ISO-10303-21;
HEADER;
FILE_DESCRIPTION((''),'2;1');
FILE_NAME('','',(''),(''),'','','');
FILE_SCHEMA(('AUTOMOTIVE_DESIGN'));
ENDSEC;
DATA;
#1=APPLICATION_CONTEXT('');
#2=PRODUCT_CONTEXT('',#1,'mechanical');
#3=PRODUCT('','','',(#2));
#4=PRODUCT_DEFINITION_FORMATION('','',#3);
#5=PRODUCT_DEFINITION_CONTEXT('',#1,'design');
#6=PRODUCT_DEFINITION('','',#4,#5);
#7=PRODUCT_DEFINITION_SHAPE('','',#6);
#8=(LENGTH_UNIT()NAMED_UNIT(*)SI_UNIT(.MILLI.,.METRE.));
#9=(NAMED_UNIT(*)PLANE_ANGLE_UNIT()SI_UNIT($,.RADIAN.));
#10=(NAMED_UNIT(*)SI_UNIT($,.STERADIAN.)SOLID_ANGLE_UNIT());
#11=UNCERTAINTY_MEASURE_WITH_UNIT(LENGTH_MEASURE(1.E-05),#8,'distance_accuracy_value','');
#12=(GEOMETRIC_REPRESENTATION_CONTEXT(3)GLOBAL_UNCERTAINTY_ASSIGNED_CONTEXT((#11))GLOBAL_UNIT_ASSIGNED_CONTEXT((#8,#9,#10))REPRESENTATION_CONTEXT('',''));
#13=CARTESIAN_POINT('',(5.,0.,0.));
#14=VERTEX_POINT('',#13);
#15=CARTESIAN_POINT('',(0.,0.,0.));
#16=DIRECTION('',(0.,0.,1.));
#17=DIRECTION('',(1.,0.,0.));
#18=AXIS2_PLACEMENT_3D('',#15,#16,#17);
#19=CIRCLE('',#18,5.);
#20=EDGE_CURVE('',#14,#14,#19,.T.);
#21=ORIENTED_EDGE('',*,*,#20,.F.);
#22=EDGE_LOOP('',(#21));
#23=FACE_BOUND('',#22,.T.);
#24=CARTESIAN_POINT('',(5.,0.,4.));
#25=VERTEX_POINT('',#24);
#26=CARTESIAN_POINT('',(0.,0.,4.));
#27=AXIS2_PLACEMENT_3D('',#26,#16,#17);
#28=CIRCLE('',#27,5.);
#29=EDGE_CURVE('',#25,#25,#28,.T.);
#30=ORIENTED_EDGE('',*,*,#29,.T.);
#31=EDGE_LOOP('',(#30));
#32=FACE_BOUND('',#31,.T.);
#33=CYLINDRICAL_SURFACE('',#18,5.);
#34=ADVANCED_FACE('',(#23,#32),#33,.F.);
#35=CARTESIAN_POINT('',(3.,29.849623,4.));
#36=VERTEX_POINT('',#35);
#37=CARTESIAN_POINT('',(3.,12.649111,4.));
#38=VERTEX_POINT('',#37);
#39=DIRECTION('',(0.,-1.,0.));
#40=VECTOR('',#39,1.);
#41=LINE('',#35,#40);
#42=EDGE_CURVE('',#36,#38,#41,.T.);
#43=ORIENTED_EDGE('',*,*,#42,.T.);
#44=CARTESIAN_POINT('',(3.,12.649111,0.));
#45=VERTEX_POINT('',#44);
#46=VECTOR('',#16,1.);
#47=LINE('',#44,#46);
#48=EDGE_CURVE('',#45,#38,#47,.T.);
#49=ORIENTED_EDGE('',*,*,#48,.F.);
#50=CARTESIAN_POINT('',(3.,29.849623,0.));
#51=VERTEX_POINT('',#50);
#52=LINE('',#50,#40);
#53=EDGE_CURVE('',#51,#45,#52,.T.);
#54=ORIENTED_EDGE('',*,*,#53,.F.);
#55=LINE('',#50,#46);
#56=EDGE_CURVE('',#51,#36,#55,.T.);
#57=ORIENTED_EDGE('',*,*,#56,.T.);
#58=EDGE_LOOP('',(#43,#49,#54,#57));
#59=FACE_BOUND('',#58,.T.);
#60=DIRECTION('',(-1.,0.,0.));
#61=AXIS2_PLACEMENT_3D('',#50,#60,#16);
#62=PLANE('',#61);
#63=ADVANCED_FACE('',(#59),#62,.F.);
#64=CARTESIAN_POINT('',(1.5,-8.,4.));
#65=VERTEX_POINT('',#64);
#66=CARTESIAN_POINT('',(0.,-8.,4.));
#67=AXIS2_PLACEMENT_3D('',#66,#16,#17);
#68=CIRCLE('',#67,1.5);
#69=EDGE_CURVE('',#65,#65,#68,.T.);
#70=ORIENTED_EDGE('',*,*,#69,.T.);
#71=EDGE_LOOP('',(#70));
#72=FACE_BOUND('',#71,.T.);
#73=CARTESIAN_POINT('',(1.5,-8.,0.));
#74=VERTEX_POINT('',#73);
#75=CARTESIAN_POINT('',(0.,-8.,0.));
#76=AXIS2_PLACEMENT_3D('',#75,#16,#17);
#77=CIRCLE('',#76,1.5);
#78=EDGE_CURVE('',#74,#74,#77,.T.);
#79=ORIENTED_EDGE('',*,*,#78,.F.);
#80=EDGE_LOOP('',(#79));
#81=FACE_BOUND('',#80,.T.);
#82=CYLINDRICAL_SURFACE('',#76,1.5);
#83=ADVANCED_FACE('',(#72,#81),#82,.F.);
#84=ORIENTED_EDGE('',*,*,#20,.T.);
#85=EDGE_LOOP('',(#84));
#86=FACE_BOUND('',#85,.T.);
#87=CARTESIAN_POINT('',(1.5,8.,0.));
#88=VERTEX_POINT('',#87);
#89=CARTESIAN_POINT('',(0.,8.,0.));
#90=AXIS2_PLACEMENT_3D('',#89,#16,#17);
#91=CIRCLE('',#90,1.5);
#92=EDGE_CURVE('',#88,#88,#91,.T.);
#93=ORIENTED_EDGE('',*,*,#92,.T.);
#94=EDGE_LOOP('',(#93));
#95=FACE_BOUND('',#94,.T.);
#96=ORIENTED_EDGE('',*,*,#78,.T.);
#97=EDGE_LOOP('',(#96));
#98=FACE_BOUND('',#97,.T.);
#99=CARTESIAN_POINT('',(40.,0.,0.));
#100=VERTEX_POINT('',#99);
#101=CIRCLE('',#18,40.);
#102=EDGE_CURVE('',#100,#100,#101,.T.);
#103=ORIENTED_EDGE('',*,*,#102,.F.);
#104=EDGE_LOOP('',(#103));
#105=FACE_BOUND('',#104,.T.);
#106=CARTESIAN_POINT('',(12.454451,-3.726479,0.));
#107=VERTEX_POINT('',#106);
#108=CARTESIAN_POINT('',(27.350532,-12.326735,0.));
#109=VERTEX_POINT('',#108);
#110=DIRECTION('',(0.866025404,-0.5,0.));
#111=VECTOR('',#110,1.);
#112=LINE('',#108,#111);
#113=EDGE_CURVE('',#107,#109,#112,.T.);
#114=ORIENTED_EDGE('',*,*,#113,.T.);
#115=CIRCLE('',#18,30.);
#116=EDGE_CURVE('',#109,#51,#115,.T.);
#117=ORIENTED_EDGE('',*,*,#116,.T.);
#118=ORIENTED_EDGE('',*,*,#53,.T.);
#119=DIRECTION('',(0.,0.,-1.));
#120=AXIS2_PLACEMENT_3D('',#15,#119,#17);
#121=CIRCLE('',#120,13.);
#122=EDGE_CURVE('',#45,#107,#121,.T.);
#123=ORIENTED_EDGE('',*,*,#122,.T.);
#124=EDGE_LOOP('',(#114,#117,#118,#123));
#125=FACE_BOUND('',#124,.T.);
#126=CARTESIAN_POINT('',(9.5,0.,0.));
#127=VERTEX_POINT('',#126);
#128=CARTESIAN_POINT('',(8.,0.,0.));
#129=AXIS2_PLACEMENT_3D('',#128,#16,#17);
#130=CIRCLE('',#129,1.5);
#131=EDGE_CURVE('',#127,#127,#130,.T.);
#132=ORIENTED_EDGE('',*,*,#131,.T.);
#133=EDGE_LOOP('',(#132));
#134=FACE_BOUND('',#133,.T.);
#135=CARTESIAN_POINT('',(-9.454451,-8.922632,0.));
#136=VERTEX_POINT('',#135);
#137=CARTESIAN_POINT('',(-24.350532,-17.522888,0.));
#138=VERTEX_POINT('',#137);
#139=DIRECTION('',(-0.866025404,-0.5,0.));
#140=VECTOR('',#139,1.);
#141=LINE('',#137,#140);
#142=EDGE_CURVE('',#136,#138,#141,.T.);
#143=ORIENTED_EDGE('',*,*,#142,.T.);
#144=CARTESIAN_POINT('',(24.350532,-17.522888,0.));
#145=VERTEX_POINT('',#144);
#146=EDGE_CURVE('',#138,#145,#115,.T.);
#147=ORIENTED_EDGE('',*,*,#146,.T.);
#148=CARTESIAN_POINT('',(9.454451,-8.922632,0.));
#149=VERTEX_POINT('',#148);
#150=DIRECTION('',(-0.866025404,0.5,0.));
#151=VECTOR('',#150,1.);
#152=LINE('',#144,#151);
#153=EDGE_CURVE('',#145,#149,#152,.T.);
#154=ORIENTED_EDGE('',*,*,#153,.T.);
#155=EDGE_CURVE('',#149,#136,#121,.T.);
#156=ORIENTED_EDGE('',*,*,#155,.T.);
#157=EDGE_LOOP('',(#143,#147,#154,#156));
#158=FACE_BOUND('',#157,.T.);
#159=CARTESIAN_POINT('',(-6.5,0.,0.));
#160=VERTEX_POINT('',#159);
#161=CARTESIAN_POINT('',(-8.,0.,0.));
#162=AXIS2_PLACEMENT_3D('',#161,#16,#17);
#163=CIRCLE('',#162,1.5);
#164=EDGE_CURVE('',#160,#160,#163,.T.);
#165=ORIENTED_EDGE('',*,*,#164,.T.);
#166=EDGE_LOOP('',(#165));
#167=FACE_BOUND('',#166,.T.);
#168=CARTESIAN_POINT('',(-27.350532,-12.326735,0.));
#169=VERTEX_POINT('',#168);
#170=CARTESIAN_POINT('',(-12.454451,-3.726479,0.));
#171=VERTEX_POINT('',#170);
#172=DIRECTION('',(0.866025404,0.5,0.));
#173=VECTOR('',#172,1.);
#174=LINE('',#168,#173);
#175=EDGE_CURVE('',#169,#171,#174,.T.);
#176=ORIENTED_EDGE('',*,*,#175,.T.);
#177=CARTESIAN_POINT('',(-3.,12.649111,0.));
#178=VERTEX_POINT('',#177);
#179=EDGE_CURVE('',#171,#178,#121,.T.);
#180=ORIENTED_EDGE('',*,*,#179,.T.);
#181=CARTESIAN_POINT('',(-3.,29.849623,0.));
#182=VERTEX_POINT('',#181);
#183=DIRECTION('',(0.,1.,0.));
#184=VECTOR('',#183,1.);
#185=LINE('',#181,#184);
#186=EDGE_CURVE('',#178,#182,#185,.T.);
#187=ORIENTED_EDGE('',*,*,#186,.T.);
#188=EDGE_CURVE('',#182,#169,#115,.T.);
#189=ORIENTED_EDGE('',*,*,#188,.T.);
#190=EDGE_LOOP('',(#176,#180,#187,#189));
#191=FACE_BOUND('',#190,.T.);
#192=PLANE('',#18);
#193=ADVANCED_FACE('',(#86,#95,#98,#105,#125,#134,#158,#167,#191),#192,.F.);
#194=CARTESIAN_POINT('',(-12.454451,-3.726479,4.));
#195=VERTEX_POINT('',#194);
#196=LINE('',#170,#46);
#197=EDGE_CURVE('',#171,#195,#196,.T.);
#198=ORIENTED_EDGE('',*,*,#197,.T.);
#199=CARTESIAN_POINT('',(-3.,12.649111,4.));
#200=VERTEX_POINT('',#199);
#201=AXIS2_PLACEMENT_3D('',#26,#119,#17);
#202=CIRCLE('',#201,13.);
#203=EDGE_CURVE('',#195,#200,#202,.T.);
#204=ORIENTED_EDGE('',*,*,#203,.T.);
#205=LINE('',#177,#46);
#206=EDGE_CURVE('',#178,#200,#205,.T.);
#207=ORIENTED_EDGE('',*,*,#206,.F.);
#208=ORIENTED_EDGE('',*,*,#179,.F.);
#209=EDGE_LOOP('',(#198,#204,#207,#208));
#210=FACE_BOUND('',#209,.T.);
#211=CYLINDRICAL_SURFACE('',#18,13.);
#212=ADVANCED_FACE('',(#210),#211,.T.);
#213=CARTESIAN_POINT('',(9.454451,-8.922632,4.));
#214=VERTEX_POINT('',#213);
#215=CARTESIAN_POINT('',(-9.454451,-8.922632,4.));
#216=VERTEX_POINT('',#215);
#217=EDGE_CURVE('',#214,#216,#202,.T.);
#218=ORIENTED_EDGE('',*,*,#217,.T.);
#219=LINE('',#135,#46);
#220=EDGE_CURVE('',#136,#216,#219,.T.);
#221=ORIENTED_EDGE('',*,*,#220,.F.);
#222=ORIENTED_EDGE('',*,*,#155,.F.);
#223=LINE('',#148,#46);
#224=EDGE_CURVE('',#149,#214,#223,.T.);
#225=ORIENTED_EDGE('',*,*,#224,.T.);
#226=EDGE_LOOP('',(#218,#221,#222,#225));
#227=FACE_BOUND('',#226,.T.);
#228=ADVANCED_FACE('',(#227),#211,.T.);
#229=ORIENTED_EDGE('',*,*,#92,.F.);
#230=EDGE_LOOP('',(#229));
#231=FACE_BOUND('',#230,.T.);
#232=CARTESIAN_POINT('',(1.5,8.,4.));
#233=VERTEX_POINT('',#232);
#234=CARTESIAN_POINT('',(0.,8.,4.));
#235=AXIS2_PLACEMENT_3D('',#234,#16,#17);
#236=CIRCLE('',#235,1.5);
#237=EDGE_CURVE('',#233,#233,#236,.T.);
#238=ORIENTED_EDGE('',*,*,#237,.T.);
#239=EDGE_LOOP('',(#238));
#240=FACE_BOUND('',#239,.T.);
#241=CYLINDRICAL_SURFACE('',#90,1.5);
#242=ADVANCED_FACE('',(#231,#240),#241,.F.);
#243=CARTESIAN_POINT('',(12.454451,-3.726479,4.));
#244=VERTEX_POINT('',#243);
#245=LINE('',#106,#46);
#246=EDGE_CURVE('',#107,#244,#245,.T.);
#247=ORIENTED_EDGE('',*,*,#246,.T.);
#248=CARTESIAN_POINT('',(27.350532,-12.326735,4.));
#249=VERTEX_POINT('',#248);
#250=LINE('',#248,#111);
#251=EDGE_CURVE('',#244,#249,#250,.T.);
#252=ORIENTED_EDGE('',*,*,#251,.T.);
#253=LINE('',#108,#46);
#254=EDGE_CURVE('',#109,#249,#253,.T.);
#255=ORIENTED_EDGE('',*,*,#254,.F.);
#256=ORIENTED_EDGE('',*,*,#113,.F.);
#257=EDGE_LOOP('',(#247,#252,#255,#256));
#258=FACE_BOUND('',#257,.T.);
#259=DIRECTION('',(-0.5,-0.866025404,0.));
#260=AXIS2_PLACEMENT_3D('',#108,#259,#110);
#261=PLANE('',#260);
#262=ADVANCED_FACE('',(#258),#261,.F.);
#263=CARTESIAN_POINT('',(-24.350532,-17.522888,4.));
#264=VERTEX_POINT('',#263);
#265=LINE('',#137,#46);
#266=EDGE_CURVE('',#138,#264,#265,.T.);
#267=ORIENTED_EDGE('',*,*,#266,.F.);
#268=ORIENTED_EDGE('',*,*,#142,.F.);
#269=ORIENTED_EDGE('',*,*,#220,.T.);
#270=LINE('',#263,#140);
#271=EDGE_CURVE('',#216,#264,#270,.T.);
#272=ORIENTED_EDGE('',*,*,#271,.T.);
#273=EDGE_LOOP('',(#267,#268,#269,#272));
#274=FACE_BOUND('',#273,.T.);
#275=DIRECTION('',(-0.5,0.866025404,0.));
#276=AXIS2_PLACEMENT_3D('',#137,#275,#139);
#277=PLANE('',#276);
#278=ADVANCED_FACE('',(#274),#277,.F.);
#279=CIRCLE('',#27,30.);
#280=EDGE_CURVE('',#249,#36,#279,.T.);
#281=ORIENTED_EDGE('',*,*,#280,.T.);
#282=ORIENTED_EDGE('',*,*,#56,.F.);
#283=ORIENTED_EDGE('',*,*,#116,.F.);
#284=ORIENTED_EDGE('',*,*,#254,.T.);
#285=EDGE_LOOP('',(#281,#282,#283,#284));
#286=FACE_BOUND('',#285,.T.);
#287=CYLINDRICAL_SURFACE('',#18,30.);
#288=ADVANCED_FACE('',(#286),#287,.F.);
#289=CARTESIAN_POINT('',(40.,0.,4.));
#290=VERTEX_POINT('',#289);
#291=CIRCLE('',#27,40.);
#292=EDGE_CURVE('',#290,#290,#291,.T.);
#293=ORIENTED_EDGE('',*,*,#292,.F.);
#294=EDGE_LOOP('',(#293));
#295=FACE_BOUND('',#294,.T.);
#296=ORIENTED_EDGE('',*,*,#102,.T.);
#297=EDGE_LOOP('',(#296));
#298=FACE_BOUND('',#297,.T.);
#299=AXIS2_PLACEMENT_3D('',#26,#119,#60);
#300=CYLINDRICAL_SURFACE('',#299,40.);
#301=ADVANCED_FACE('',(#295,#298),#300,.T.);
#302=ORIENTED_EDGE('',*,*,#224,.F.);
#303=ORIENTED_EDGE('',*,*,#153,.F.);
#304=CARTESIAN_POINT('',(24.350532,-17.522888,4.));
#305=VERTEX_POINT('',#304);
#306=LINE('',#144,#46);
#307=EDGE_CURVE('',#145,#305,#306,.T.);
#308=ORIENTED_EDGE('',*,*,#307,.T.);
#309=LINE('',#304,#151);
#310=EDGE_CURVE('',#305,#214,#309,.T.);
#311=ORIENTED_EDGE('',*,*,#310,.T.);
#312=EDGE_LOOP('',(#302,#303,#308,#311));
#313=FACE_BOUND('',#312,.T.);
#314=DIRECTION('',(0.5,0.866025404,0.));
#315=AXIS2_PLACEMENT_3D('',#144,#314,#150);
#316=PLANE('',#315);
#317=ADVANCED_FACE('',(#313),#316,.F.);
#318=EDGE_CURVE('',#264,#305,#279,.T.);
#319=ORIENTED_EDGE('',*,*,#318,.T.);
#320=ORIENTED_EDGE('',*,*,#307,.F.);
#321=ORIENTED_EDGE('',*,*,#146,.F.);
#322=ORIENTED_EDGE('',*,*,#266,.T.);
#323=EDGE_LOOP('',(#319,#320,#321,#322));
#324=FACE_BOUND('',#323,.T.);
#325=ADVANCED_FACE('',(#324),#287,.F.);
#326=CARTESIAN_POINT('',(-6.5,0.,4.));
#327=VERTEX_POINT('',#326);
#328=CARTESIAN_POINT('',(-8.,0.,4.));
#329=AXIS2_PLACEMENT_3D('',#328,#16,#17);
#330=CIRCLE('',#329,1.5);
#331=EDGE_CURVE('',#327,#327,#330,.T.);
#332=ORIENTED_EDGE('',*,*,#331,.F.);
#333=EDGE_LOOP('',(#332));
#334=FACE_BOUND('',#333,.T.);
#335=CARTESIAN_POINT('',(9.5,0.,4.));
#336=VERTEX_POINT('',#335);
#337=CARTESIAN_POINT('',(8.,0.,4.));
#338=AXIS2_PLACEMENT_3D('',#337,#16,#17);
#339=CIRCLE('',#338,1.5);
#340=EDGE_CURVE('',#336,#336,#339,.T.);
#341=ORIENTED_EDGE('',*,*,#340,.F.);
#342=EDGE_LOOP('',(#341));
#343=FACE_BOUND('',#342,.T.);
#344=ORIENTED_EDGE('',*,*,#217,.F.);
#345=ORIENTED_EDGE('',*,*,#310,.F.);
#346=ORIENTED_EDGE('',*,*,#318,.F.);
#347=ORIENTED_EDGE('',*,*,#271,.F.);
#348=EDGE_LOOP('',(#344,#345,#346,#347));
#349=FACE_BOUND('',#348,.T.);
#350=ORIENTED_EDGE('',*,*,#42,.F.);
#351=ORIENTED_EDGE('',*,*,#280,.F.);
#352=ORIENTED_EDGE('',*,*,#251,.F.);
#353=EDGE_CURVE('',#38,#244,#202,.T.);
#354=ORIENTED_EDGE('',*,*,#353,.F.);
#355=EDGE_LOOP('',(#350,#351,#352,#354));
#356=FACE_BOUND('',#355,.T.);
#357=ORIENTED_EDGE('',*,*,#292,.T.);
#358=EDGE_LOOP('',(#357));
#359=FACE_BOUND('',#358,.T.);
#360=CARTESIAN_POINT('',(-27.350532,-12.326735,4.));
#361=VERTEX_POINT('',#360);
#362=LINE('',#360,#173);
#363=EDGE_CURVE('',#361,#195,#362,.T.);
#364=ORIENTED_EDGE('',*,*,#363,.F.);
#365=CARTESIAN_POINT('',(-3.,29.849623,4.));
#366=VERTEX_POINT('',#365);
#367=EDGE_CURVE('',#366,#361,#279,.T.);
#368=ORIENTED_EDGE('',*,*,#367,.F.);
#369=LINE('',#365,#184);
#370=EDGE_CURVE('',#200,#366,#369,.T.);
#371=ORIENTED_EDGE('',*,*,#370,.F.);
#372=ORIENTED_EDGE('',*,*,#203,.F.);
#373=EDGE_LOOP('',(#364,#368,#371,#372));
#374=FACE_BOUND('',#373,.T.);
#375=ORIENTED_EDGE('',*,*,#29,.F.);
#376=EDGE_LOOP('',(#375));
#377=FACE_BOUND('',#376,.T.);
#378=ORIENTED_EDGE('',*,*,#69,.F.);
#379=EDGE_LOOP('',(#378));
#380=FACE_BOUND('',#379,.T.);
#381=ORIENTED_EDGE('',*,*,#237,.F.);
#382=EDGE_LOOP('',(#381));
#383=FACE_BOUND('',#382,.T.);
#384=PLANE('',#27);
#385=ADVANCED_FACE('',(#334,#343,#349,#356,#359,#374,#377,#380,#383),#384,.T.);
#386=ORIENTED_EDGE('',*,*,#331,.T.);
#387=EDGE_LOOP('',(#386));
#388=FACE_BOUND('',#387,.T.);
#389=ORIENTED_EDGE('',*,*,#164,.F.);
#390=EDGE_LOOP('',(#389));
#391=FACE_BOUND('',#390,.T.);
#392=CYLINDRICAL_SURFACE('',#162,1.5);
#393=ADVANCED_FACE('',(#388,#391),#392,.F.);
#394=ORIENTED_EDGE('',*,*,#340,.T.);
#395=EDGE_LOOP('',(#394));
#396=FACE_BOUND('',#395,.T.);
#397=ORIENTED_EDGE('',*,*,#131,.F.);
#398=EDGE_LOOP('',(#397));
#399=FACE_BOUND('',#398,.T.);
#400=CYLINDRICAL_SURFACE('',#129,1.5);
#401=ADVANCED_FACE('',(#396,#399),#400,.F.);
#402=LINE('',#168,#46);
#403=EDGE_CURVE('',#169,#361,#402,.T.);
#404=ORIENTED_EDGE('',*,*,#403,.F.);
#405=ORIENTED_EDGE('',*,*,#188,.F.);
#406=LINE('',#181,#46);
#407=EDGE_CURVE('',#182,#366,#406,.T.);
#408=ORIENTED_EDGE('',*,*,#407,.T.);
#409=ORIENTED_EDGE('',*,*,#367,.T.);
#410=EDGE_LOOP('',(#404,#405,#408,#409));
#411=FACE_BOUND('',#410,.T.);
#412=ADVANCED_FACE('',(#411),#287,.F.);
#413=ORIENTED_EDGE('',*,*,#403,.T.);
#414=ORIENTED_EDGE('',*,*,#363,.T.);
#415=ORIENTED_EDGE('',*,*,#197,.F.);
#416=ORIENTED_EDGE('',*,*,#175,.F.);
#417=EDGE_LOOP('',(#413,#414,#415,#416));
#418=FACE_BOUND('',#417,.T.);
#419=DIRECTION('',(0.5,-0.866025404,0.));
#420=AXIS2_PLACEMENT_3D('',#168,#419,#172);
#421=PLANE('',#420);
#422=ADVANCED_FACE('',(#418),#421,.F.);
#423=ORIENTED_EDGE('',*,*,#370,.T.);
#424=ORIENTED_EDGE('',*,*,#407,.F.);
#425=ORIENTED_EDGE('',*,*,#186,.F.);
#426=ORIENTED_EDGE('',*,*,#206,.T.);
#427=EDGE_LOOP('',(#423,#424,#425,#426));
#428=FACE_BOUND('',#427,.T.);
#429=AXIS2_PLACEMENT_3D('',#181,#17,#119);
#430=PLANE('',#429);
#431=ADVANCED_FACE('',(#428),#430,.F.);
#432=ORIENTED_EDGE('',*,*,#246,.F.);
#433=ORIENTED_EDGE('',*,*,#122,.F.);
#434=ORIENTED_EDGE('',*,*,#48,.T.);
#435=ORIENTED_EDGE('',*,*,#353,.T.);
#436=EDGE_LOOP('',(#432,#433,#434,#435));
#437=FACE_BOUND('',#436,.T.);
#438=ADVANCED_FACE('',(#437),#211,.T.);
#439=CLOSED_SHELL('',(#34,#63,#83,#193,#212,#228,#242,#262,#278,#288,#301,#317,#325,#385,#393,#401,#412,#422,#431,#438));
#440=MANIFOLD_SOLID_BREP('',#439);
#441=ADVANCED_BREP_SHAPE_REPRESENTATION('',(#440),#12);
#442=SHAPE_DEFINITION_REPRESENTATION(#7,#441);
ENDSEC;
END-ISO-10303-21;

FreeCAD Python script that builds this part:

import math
import FreeCAD as App
import Part
import Sketcher
Q = App.Units.Quantity

doc = App.newDocument("Part")
body = doc.addObject("PartDesign::Body", "Body")

# Sketch on XY plane
sketch1 = body.newObject("Sketcher::SketchObject", "Sketch")
sketch1.AttachmentSupport = (doc.getObject("XY_Plane"), [""])
sketch1.MapMode = "FlatFace"
sketch1.addGeometry(Part.Circle(App.Vector(0, 0, 0), App.Vector(0, 0, 1), 40), False)
sketch1.addConstraint([
    Sketcher.Constraint("Coincident", 0, 3, -1, 1),
    Sketcher.Constraint("Diameter", 0, Q("80 mm")),
])
pad1 = body.newObject("PartDesign::Pad", "Pad")
pad1.Profile = sketch1
pad1.Length = 4

# Sketch on XY plane
sketch2 = body.newObject("Sketcher::SketchObject", "Sketch001")
sketch2.AttachmentSupport = (doc.getObject("XY_Plane"), [""])
sketch2.MapMode = "FlatFace"
sketch2.AttachmentOffset = App.Placement(App.Vector(0, 0, 4), App.Rotation())
sketch2.addGeometry([
    Part.Circle(App.Vector(0, 0, 0), App.Vector(0, 0, 1), 5),  # 0
    Part.Circle(App.Vector(-8, 0, 0), App.Vector(0, 0, 1), 1.5),  # 1
    Part.Circle(App.Vector(0, 8, 0), App.Vector(0, 0, 1), 1.5),  # 2
    Part.Circle(App.Vector(8, 0, 0), App.Vector(0, 0, 1), 1.5),  # 3
    Part.Circle(App.Vector(0, -8, 0), App.Vector(0, 0, 1), 1.5),  # 4
    Part.LineSegment(App.Vector(-3, 12.649111, 0), App.Vector(-3, 29.849623, 0)),  # 5
    Part.ArcOfCircle(Part.Circle(App.Vector(0, 0, 0), App.Vector(0, 0, 1), 30), math.radians(95.73917), math.radians(204.26083)),  # 6
    Part.LineSegment(App.Vector(-27.350532, -12.326735, 0), App.Vector(-12.454451, -3.726479, 0)),  # 7
    Part.ArcOfCircle(Part.Circle(App.Vector(0, 0, 0), App.Vector(0, 0, 1), 13), math.radians(103.342364), math.radians(196.657636)),  # 8
    Part.LineSegment(App.Vector(3, 29.849623, 0), App.Vector(3, 12.649111, 0)),  # 9
    Part.ArcOfCircle(Part.Circle(App.Vector(0, 0, 0), App.Vector(0, 0, 1), 13), math.radians(-16.657636), math.radians(76.657636)),  # 10
    Part.LineSegment(App.Vector(12.454451, -3.726479, 0), App.Vector(27.350532, -12.326735, 0)),  # 11
    Part.ArcOfCircle(Part.Circle(App.Vector(0, 0, 0), App.Vector(0, 0, 1), 30), math.radians(-24.26083), math.radians(84.26083)),  # 12
    Part.LineSegment(App.Vector(24.350532, -17.522888, 0), App.Vector(9.454451, -8.922632, 0)),  # 13
    Part.ArcOfCircle(Part.Circle(App.Vector(0, 0, 0), App.Vector(0, 0, 1), 13), math.radians(-136.657636), math.radians(-43.342364)),  # 14
    Part.LineSegment(App.Vector(-9.454451, -8.922632, 0), App.Vector(-24.350532, -17.522888, 0)),  # 15
    Part.ArcOfCircle(Part.Circle(App.Vector(0, 0, 0), App.Vector(0, 0, 1), 30), math.radians(-144.26083), math.radians(-35.73917)),  # 16
], False)
sketch2.addConstraint([
    Sketcher.Constraint("Coincident", 5, 2, 6, 1),
    Sketcher.Constraint("Coincident", 6, 2, 7, 1),
    Sketcher.Constraint("Coincident", 7, 2, 8, 2),
    Sketcher.Constraint("Coincident", 8, 1, 5, 1),
    Sketcher.Constraint("Coincident", 9, 2, 10, 2),
    Sketcher.Constraint("Coincident", 10, 1, 11, 1),
    Sketcher.Constraint("Coincident", 11, 2, 12, 1),
    Sketcher.Constraint("Coincident", 12, 2, 9, 1),
    Sketcher.Constraint("Coincident", 13, 2, 14, 2),
    Sketcher.Constraint("Coincident", 14, 1, 15, 1),
    Sketcher.Constraint("Coincident", 15, 2, 16, 1),
    Sketcher.Constraint("Coincident", 16, 2, 13, 1),
    Sketcher.Constraint("Vertical", 5),
    Sketcher.Constraint("Vertical", 9),
    Sketcher.Constraint("Coincident", 0, 3, -1, 1),
    Sketcher.Constraint("Coincident", 6, 3, -1, 1),
    Sketcher.Constraint("Coincident", 8, 3, -1, 1),
    Sketcher.Constraint("Coincident", 10, 3, -1, 1),
    Sketcher.Constraint("Coincident", 12, 3, -1, 1),
    Sketcher.Constraint("Coincident", 14, 3, -1, 1),
    Sketcher.Constraint("Coincident", 16, 3, -1, 1),
    Sketcher.Constraint("Equal", 1, 2),
    Sketcher.Constraint("Equal", 2, 3),
    Sketcher.Constraint("Equal", 3, 4),
    Sketcher.Constraint("Equal", 8, 10),
    Sketcher.Constraint("Equal", 6, 12),
    Sketcher.Constraint("Equal", 10, 14),
    Sketcher.Constraint("Equal", 12, 16),
    Sketcher.Constraint("Symmetric", 1, 3, 3, 3, -1, 1),
    Sketcher.Constraint("Symmetric", 2, 3, 4, 3, -1, 1),
    Sketcher.Constraint("PointOnObject", 1, 3, -1),
    Sketcher.Constraint("PointOnObject", 2, 3, -2),
    Sketcher.Constraint("Parallel", 11, 13),
    Sketcher.Constraint("Parallel", 7, 15),
    Sketcher.Constraint("Horizontal", 8, 1, 9, 2),
    Sketcher.Constraint("Horizontal", 7, 2, 10, 1),
    Sketcher.Constraint("Horizontal", 6, 2, 11, 2),
    Sketcher.Constraint("Horizontal", 13, 2, 14, 1),
    Sketcher.Constraint("Equal", 11, 13),
    Sketcher.Constraint("Diameter", 0, Q("10 mm")),
    Sketcher.Constraint("Diameter", 1, Q("3 mm")),
    Sketcher.Constraint("Radius", 6, Q("30 mm")),
    Sketcher.Constraint("Radius", 8, Q("13 mm")),
    Sketcher.Constraint("Angle", 7, Q("30 deg")),
    Sketcher.Constraint("DistanceX", 1, 3, -1, 1, Q("8 mm")),
    Sketcher.Constraint("DistanceY", -1, 1, 2, 3, Q("8 mm")),
    Sketcher.Constraint("DistanceX", 5, 2, -1, 1, Q("3 mm")),
    Sketcher.Constraint("DistanceX", 13, 2, 10, 1, Q("3 mm")),
])
pocket1 = body.newObject("PartDesign::Pocket", "Pocket")
pocket1.Profile = sketch2
pocket1.Type = "ThroughAll"

doc.recompute()
